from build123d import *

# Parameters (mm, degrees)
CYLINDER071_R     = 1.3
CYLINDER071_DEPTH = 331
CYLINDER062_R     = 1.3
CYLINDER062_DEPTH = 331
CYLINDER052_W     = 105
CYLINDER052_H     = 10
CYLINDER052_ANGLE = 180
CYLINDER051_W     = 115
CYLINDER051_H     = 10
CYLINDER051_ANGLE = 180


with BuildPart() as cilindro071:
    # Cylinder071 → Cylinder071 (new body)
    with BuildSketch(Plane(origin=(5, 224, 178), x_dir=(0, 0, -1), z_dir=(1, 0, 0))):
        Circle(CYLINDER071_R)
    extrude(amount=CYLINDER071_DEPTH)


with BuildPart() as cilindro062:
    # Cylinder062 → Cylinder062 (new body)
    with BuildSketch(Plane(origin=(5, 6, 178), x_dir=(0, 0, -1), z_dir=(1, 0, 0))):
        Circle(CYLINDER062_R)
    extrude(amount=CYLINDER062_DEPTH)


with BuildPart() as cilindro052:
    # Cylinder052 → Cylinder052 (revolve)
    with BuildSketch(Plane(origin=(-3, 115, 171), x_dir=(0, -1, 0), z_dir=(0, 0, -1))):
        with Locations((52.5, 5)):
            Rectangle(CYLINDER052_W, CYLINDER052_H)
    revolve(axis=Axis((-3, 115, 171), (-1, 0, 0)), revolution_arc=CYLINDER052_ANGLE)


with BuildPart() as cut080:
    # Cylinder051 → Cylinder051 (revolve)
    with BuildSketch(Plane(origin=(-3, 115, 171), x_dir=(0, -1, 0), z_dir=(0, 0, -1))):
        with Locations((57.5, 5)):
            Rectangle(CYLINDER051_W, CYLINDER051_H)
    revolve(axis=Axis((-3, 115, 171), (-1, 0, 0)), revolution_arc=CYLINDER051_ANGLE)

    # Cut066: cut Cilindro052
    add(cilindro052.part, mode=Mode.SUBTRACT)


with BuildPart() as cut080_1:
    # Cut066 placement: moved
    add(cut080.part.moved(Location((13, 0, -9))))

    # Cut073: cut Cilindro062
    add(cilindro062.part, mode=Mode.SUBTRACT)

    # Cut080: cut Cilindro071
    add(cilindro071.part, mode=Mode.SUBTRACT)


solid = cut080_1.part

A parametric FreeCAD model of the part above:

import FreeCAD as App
import Part
import Sketcher
from FreeCAD import Vector
Q = App.Units.Quantity

doc = App.newDocument("Part")
body = doc.addObject("PartDesign::Body", "Body")

# Sketch on YZ plane
sketch1 = body.newObject("Sketcher::SketchObject", "Sketch")
sketch1.AttachmentSupport = (doc.getObject("YZ_Plane"), [""])
sketch1.MapMode = "FlatFace"
sketch1.AttachmentOffset = App.Placement(Vector(0, 0, 5), App.Rotation())
sketch1.addGeometry(Part.Circle(Vector(224, 178, 0), Vector(0, 0, 1), 1.3), False)
sketch1.addConstraint(Sketcher.Constraint("Diameter", 0, Q("2.6 mm")))
sketch1.addConstraint(Sketcher.Constraint("DistanceX", -1, 1, 0, 3, Q("224 mm")))
sketch1.addConstraint(Sketcher.Constraint("DistanceY", -1, 1, 0, 3, Q("178 mm")))
pad1 = body.newObject("PartDesign::Pad", "Pad")
pad1.Profile = sketch1
pad1.Length = 331
body2 = doc.addObject("PartDesign::Body", "Body001")

# Sketch on YZ plane
sketch2 = body2.newObject("Sketcher::SketchObject", "Sketch001")
sketch2.AttachmentSupport = (doc.getObject("YZ_Plane001"), [""])
sketch2.MapMode = "FlatFace"
sketch2.AttachmentOffset = App.Placement(Vector(0, 0, 5), App.Rotation())
sketch2.addGeometry(Part.Circle(Vector(6, 178, 0), Vector(0, 0, 1), 1.3), False)
sketch2.addConstraint(Sketcher.Constraint("Diameter", 0, Q("2.6 mm")))
sketch2.addConstraint(Sketcher.Constraint("DistanceX", -1, 1, 0, 3, Q("6 mm")))
sketch2.addConstraint(Sketcher.Constraint("DistanceY", -1, 1, 0, 3, Q("178 mm")))
pad2 = body2.newObject("PartDesign::Pad", "Pad001")
pad2.Profile = sketch2
pad2.Length = 331
body3 = doc.addObject("PartDesign::Body", "Body002")

# Sketch on XY plane
sketch3 = body3.newObject("Sketcher::SketchObject", "Sketch002")
sketch3.AttachmentSupport = (doc.getObject("XY_Plane002"), [""])
sketch3.MapMode = "FlatFace"
sketch3.AttachmentOffset = App.Placement(Vector(0, 0, 171), App.Rotation())
sketch3.addGeometry(Part.LineSegment(Vector(-13, 115, 0), Vector(-3, 115, 0)), False)
sketch3.addGeometry(Part.LineSegment(Vector(-3, 115, 0), Vector(-3, 10, 0)), False)
sketch3.addGeometry(Part.LineSegment(Vector(-3, 10, 0), Vector(-13, 10, 0)), False)
sketch3.addGeometry(Part.LineSegment(Vector(-13, 10, 0), Vector(-13, 115, 0)), False)
sketch3.addGeometry(Part.LineSegment(Vector(-3, 115, 0), Vector(-13, 115, 0)), True)  # axis
sketch3.addConstraint(Sketcher.Constraint("Coincident", 0, 2, 1, 1))
sketch3.addConstraint(Sketcher.Constraint("Coincident", 1, 2, 2, 1))
sketch3.addConstraint(Sketcher.Constraint("Coincident", 2, 2, 3, 1))
sketch3.addConstraint(Sketcher.Constraint("Coincident", 3, 2, 0, 1))
sketch3.addConstraint(Sketcher.Constraint("Horizontal", 0))
sketch3.addConstraint(Sketcher.Constraint("Vertical", 1))
sketch3.addConstraint(Sketcher.Constraint("Horizontal", 2))
sketch3.addConstraint(Sketcher.Constraint("Vertical", 3))
sketch3.addConstraint(Sketcher.Constraint("Horizontal", 4))
sketch3.addConstraint(Sketcher.Constraint("Coincident", 4, 1, 0, 2))
sketch3.addConstraint(Sketcher.Constraint("Vertical", 2, 2, 4, 2))
sketch3.addConstraint(Sketcher.Constraint("DistanceX", 0, 1, 0, 2, Q("10 mm")))
sketch3.addConstraint(Sketcher.Constraint("DistanceY", 1, 2, 1, 1, Q("105 mm")))
sketch3.addConstraint(Sketcher.Constraint("DistanceX", 0, 2, -1, 1, Q("3 mm")))
sketch3.addConstraint(Sketcher.Constraint("DistanceY", -1, 1, 0, 2, Q("115 mm")))
revolution = body3.newObject("PartDesign::Revolution", "Revolution")
revolution.Profile = sketch3
revolution.ReferenceAxis = (sketch3, ["Axis0"])
revolution.Angle = 180
body4 = doc.addObject("PartDesign::Body", "Body003")

# Sketch on XY plane
sketch4 = body4.newObject("Sketcher::SketchObject", "Sketch003")
sketch4.AttachmentSupport = (doc.getObject("XY_Plane003"), [""])
sketch4.MapMode = "FlatFace"
sketch4.AttachmentOffset = App.Placement(Vector(0, 0, 171), App.Rotation())
sketch4.addGeometry(Part.LineSegment(Vector(-13, 115, 0), Vector(-3, 115, 0)), False)
sketch4.addGeometry(Part.LineSegment(Vector(-3, 115, 0), Vector(-3, 0, 0)), False)
sketch4.addGeometry(Part.LineSegment(Vector(-3, 0, 0), Vector(-13, 0, 0)), False)
sketch4.addGeometry(Part.LineSegment(Vector(-13, 0, 0), Vector(-13, 115, 0)), False)
sketch4.addGeometry(Part.LineSegment(Vector(-3, 115, 0), Vector(-13, 115, 0)), True)  # axis
sketch4.addConstraint(Sketcher.Constraint("Coincident", 0, 2, 1, 1))
sketch4.addConstraint(Sketcher.Constraint("Coincident", 1, 2, 2, 1))
sketch4.addConstraint(Sketcher.Constraint("Coincident", 2, 2, 3, 1))
sketch4.addConstraint(Sketcher.Constraint("Coincident", 3, 2, 0, 1))
sketch4.addConstraint(Sketcher.Constraint("Horizontal", 0))
sketch4.addConstraint(Sketcher.Constraint("Vertical", 1))
sketch4.addConstraint(Sketcher.Constraint("Horizontal", 2))
sketch4.addConstraint(Sketcher.Constraint("Vertical", 3))
sketch4.addConstraint(Sketcher.Constraint("Horizontal", 4))
sketch4.addConstraint(Sketcher.Constraint("Coincident", 4, 1, 0, 2))
sketch4.addConstraint(Sketcher.Constraint("PointOnObject", 1, 2, -1))
sketch4.addConstraint(Sketcher.Constraint("Vertical", 2, 2, 4, 2))
sketch4.addConstraint(Sketcher.Constraint("DistanceX", 0, 1, 0, 2, Q("10 mm")))
sketch4.addConstraint(Sketcher.Constraint("DistanceY", 1, 2, 1, 1, Q("115 mm")))
sketch4.addConstraint(Sketcher.Constraint("DistanceX", 0, 2, -1, 1, Q("3 mm")))
revolution2 = body4.newObject("PartDesign::Revolution", "Revolution001")
revolution2.Profile = sketch4
revolution2.ReferenceAxis = (sketch4, ["Axis0"])
revolution2.Angle = 180
doc.recompute()

boolean = body4.newObject("PartDesign::Boolean", "Boolean")
boolean.Type = "Cut"
boolean.addObjects([body3])
body5 = doc.addObject("PartDesign::Body", "Body004")
doc.recompute()

body4.Placement = App.Placement(Vector(13, 0, -9), App.Rotation(Vector(0, 0, 1), 0))
boolean2 = body5.newObject("PartDesign::Boolean", "Boolean001")
boolean2.Type = "Fuse"
boolean2.addObjects([body4])
doc.recompute()

boolean3 = body5.newObject("PartDesign::Boolean", "Boolean002")
boolean3.Type = "Cut"
boolean3.addObjects([body2])
doc.recompute()

boolean4 = body5.newObject("PartDesign::Boolean", "Boolean003")
boolean4.Type = "Cut"
boolean4.addObjects([body])

doc.recompute()
